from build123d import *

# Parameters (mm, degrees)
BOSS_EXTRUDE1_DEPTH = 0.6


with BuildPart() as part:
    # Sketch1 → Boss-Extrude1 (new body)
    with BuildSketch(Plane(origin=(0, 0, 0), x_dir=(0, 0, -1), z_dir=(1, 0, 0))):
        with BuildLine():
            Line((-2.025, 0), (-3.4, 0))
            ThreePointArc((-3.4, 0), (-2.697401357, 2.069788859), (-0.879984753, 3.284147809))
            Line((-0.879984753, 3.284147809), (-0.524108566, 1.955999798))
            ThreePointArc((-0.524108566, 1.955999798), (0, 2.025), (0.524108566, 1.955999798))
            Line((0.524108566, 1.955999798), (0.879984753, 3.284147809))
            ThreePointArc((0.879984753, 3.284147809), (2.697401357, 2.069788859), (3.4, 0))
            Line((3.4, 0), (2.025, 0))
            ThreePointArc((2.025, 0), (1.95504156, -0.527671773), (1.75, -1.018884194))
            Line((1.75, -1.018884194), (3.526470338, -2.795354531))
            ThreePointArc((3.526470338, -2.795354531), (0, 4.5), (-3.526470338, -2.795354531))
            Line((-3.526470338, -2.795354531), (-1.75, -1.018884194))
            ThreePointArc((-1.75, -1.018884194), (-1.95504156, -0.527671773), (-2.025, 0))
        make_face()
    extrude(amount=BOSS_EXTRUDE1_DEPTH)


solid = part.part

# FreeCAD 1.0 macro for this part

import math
import FreeCAD as App
import Part
import Sketcher
from FreeCAD import Vector
Q = App.Units.Quantity

doc = App.newDocument("Part")
body = doc.addObject("PartDesign::Body", "Body")

sketch1 = body.newObject("Sketcher::SketchObject", "Sketch")
sketch1.AttachmentSupport = (doc.getObject("YZ_Plane"), [""])
sketch1.MapMode = "FlatFace"
sketch1.addGeometry([
    Part.LineSegment(Vector(0, 2, 0), Vector(0, 3.4, 0)),
    Part.ArcOfCircle(Part.Circle(Vector(0, 0, 0), Vector(0, 0, 1), 3.4), math.radians(15), math.radians(90)),
    Part.LineSegment(Vector(3.3, 0.9, 0), Vector(2, 0.5, 0)),
    Part.ArcOfCircle(Part.Circle(Vector(0, 0, 0), Vector(0, 0, 1), 2), math.radians(-15), math.radians(15)),
    Part.LineSegment(Vector(2, -0.5, 0), Vector(3.3, -0.9, 0)),
    Part.ArcOfCircle(Part.Circle(Vector(0, 0, 0), Vector(0, 0, 1), 3.4), math.radians(-90), math.radians(-15)),
    Part.LineSegment(Vector(0, -3.4, 0), Vector(0, -2, 0)),
    Part.ArcOfCircle(Part.Circle(Vector(0, 0, 0), Vector(0, 0, 1), 2), math.radians(-120), math.radians(-90)),
    Part.LineSegment(Vector(-1, -1.8, 0), Vector(-2.8, -3.5, 0)),
    Part.ArcOfCircle(Part.Circle(Vector(0, 0, 0), Vector(0, 0, 1), 4.5), math.radians(-128), math.radians(128)),
    Part.LineSegment(Vector(-2.8, 3.5, 0), Vector(-1, 1.8, 0)),
    Part.ArcOfCircle(Part.Circle(Vector(0, 0, 0), Vector(0, 0, 1), 2), math.radians(90), math.radians(120)),
], False)
sketch1.addConstraint([
    Sketcher.Constraint("Coincident", 0, 2, 1, 2),
    Sketcher.Constraint("Coincident", 1, 1, 2, 1),
    Sketcher.Constraint("Coincident", 2, 2, 3, 2),
    Sketcher.Constraint("Coincident", 3, 1, 4, 1),
    Sketcher.Constraint("Coincident", 4, 2, 5, 2),
    Sketcher.Constraint("Coincident", 5, 1, 6, 1),
    Sketcher.Constraint("Coincident", 6, 2, 7, 2),
    Sketcher.Constraint("Coincident", 7, 1, 8, 1),
    Sketcher.Constraint("Coincident", 8, 2, 9, 1),
    Sketcher.Constraint("Coincident", 9, 2, 10, 1),
    Sketcher.Constraint("Coincident", 10, 2, 11, 2),
    Sketcher.Constraint("Coincident", 11, 1, 0, 1),
    Sketcher.Constraint("Vertical", 0),
    Sketcher.Constraint("Vertical", 6),
    Sketcher.Constraint("Coincident", 1, 3, -1, 1),
    Sketcher.Constraint("Coincident", 3, 3, -1, 1),
    Sketcher.Constraint("Coincident", 5, 3, -1, 1),
    Sketcher.Constraint("Coincident", 7, 3, -1, 1),
    Sketcher.Constraint("Coincident", 9, 3, -1, 1),
    Sketcher.Constraint("Coincident", 11, 3, -1, 1),
    Sketcher.Constraint("Equal", 1, 5),
    Sketcher.Constraint("Equal", 3, 7),
    Sketcher.Constraint("Equal", 7, 11),
    Sketcher.Constraint("PointOnObject", 0, 2, -2),
    Sketcher.Constraint("PointOnObject", 5, 1, -2),
    Sketcher.Constraint("Perpendicular", 8, 10),
    Sketcher.Constraint("Vertical", 2, 2, 3, 1),
    Sketcher.Constraint("Vertical", 1, 1, 4, 2),
    Sketcher.Constraint("Vertical", 8, 2, 9, 2),
    Sketcher.Constraint("Vertical", 7, 1, 10, 2),
    Sketcher.Constraint("Radius", 1, 3.4),
    Sketcher.Constraint("Radius", 9, 4.5),
    Sketcher.Constraint("Angle", 2, Q("-165 deg")),
    Sketcher.Constraint("Radius", 3, 2.025),
    Sketcher.Constraint("DistanceY", 7, 1, -1, 1, 1.75),
    Sketcher.Constraint("DistanceX", -1, 1, 2, 2, 1.956),
])
pad1 = body.newObject("PartDesign::Pad", "Pad")
pad1.Profile = sketch1
pad1.Length = 0.6

doc.recompute()
